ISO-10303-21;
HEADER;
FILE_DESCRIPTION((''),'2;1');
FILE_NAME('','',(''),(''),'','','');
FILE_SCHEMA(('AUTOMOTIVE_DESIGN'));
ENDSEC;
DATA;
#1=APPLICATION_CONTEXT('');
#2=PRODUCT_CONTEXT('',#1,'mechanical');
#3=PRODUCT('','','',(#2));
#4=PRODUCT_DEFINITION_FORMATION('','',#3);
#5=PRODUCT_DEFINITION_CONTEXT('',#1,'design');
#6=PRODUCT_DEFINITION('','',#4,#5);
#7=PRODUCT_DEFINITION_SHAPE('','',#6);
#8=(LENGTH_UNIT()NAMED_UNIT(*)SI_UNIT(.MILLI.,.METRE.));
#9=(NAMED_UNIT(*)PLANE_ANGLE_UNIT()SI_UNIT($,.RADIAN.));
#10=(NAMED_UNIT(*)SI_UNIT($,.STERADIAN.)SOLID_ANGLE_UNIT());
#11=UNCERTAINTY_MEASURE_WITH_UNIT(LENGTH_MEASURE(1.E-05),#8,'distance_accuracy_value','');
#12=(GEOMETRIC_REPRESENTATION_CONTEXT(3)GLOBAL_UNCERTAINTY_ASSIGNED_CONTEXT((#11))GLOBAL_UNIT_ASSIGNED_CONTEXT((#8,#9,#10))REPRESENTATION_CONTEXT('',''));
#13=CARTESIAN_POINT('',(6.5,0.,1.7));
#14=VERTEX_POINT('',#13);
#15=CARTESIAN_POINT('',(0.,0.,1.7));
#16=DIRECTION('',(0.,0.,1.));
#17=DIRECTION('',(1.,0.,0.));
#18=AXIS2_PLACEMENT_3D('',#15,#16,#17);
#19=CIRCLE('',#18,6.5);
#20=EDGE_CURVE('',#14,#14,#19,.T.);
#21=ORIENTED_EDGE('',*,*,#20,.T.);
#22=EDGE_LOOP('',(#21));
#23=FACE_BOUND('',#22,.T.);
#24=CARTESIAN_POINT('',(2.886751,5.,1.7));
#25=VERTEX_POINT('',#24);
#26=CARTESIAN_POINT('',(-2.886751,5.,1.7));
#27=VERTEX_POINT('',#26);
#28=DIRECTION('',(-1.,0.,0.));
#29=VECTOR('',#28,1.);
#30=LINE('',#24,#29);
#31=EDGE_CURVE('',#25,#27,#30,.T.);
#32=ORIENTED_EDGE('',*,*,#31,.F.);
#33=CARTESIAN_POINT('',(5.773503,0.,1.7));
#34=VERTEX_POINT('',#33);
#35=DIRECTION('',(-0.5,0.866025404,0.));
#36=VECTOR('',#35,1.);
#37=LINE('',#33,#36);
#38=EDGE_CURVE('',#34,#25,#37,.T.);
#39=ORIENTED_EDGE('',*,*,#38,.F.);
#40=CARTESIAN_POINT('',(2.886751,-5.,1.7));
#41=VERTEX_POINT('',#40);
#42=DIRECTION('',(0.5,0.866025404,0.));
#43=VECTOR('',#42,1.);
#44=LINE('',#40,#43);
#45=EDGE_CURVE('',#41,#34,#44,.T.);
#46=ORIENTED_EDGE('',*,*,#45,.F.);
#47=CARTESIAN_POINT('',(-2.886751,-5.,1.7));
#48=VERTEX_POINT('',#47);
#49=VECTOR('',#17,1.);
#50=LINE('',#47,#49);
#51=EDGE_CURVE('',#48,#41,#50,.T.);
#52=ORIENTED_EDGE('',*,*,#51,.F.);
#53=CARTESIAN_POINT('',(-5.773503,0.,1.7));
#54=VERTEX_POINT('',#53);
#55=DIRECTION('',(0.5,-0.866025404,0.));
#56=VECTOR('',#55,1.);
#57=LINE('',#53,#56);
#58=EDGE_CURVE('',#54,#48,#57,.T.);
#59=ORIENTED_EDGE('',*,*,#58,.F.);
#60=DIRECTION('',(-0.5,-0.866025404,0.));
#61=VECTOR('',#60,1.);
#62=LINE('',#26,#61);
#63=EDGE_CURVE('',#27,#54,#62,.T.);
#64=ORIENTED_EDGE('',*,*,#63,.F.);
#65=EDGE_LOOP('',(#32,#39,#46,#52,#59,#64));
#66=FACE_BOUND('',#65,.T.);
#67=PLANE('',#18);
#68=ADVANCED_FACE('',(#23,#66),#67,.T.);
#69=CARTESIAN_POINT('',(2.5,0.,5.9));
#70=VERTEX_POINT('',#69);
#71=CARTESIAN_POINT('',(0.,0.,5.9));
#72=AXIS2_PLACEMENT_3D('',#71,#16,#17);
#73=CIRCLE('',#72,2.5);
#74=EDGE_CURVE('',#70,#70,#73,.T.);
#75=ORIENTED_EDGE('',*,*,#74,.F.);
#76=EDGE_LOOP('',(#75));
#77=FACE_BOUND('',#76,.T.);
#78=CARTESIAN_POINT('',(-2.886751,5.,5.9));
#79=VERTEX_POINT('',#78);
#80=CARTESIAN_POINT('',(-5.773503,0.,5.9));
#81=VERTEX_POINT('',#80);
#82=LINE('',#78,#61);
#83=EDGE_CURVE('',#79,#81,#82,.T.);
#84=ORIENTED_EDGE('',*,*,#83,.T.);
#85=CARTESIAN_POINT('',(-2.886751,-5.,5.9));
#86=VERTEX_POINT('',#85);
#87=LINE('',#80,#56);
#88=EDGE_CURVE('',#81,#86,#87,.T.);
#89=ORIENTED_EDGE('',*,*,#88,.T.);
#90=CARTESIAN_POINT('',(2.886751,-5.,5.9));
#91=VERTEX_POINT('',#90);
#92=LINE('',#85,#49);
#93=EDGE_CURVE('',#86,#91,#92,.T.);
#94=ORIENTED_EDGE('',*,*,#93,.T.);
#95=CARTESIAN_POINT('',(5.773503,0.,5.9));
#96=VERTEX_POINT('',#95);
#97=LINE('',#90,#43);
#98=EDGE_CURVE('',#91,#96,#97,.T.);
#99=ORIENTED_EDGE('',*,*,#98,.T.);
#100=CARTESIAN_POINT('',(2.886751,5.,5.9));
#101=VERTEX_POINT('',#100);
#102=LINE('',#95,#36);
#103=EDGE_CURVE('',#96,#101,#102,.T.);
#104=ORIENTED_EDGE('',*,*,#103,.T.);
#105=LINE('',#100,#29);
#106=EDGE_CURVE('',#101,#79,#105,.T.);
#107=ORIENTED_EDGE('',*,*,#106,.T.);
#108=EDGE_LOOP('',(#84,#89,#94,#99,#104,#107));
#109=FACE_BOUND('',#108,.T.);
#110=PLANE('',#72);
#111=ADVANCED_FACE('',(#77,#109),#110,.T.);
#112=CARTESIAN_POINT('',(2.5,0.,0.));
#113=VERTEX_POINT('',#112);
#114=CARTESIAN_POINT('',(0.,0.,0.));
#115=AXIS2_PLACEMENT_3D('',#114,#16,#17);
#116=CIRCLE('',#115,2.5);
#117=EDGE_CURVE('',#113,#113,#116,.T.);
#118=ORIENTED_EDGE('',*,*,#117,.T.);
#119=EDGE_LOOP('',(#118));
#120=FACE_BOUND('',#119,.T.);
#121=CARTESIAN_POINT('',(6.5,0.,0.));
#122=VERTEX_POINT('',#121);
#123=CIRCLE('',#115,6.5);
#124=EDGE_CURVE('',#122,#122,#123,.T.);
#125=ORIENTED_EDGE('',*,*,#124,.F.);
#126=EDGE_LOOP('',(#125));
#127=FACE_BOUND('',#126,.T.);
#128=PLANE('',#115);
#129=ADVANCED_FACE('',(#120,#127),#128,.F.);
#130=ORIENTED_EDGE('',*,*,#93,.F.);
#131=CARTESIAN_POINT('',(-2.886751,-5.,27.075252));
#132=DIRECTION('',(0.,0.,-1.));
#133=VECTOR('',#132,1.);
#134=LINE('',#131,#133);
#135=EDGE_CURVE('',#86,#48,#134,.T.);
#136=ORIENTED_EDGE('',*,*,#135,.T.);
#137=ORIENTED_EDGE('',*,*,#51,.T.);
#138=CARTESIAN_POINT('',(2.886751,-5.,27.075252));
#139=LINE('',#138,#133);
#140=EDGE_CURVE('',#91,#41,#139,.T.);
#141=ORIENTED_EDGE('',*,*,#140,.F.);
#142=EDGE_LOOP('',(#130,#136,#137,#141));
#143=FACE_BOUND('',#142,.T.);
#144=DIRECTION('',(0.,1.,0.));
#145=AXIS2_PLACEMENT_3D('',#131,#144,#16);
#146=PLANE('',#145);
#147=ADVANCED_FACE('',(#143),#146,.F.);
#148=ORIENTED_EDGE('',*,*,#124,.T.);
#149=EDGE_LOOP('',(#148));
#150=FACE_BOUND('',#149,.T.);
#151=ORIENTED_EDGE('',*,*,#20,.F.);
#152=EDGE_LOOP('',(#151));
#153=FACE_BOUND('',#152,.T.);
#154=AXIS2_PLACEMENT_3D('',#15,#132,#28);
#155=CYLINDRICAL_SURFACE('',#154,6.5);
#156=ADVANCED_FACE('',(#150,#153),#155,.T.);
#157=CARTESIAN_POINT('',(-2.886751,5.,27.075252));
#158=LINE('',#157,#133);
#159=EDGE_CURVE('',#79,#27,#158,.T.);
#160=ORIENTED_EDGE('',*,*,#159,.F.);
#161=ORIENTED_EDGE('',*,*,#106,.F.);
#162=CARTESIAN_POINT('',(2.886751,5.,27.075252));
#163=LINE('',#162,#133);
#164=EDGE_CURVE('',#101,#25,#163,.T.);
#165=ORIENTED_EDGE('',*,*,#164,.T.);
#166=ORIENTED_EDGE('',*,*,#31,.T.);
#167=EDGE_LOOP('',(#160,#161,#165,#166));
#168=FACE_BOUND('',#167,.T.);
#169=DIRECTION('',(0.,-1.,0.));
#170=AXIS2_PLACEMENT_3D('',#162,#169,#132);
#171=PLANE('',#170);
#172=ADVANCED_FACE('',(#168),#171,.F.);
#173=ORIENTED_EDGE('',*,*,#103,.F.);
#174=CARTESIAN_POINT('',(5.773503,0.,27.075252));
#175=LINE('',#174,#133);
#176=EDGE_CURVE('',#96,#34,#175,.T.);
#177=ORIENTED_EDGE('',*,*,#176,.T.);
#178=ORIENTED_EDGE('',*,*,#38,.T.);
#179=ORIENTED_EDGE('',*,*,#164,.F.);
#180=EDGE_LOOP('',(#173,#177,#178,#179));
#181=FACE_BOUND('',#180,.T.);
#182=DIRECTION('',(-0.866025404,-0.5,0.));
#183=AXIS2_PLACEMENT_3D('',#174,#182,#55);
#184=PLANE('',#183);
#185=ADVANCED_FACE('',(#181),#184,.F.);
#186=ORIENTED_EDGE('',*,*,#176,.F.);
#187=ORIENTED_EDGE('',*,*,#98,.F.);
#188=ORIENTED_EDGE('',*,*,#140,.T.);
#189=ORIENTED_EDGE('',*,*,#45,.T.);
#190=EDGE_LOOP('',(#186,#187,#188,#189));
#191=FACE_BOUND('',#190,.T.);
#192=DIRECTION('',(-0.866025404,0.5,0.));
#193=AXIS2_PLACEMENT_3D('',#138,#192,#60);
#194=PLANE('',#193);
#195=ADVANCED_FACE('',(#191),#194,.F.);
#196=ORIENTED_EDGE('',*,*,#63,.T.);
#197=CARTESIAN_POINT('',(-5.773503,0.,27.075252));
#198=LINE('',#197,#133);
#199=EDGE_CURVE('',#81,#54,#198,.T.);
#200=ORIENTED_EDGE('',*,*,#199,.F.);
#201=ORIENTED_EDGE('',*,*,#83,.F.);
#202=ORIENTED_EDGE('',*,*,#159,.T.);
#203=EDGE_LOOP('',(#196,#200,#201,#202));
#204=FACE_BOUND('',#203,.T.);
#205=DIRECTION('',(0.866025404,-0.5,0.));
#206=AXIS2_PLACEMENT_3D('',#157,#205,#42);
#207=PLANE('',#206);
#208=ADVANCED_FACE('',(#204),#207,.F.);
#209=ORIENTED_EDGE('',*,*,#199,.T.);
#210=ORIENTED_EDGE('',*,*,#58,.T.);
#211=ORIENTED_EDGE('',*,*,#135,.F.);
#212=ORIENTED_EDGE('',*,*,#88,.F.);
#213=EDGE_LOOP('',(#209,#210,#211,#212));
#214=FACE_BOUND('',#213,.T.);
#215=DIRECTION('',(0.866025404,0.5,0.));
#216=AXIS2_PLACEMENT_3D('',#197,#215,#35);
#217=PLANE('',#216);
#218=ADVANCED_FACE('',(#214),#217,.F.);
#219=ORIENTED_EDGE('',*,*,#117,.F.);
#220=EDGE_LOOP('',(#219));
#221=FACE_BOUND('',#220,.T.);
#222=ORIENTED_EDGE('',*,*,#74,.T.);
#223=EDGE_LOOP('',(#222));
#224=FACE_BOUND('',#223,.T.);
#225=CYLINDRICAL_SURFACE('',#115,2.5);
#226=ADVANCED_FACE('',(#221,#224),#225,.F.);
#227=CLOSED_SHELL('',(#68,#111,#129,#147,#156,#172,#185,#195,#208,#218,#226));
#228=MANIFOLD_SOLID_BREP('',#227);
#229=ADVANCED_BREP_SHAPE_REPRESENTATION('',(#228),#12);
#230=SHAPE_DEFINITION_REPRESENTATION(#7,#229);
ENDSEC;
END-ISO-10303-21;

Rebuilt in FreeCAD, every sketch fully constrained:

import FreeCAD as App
import Part
import Sketcher
from FreeCAD import Vector
Q = App.Units.Quantity


def add_polygon(sketch, points):
    """Adds a closed chain of lines whose ends are joined by coincident constraints."""
    first, n = sketch.GeometryCount, len(points)
    for a, b in zip(points, points[1:] + points[:1]):
        sketch.addGeometry(Part.LineSegment(App.Vector(*a, 0), App.Vector(*b, 0)), False)
    for i in range(n):
        sketch.addConstraint(Sketcher.Constraint("Coincident", first + i, 2, first + (i + 1) % n, 1))

doc = App.newDocument("Part")
params = doc.addObject("Spreadsheet::Sheet", "Params")
for row, (alias, value) in enumerate([
    ("sketch1_diameter", "13 mm"),
    ("pad1_length", "1.7 mm"),
    ("pad2_length", "4.2 mm"),
    ("sketch3_diameter", "5 mm"),
], start=1):
    params.set(f"A{row}", alias)
    params.set(f"B{row}", "=" + value)
    params.setAlias(f"B{row}", alias)

body = doc.addObject("PartDesign::Body", "Body")

sketch1 = body.newObject("Sketcher::SketchObject", "Sketch")
sketch1.AttachmentSupport = (doc.getObject("XY_Plane"), [""])
sketch1.MapMode = "FlatFace"
sketch1.addGeometry(Part.Circle(Vector(0, 0, 0), Vector(0, 0, 1), 6), False)
sketch1.addConstraint(Sketcher.Constraint("Coincident", 0, 3, -1, 1))
sketch1.addConstraint(Sketcher.Constraint("Diameter", 0, 13.0))
sketch1.setExpression("Constraints[1]", "Params.sketch1_diameter")
pad1 = body.newObject("PartDesign::Pad", "Pad")
pad1.Profile = sketch1
pad1.setExpression("Length", "Params.pad1_length")

sketch2 = body.newObject("Sketcher::SketchObject", "Sketch001")
sketch2.AttachmentSupport = (doc.getObject("XY_Plane"), [""])
sketch2.MapMode = "FlatFace"
sketch2.AttachmentOffset = App.Placement(Vector(0, 0, 1.7), App.Rotation())
add_polygon(sketch2, [(6, 0), (3, 5), (-3, 5), (-6, 0), (-3, -5), (3, -5)])
sketch2.addConstraint(Sketcher.Constraint("Horizontal", 1))
sketch2.addConstraint(Sketcher.Constraint("Horizontal", 4))
sketch2.addConstraint(Sketcher.Constraint("Symmetric", 0, 2, 3, 2, -1, 1))
sketch2.addConstraint(Sketcher.Constraint("Symmetric", 2, 2, 5, 2, -1, 1))
sketch2.addConstraint(Sketcher.Constraint("PointOnObject", 2, 2, -1))
sketch2.addConstraint(Sketcher.Constraint("Parallel", 2, 5))
sketch2.addConstraint(Sketcher.Constraint("Vertical", 1, 2, 3, 2))
sketch2.addConstraint(Sketcher.Constraint("Angle", 0, Q("120 deg")))
sketch2.addConstraint(Sketcher.Constraint("DistanceY", -1, 1, 0, 2, 5.0))
sketch2.addConstraint(Sketcher.Constraint("DistanceX", 1, 2, 1, 1, 5.773503))
pad2 = body.newObject("PartDesign::Pad", "Pad001")
pad2.Profile = sketch2
pad2.setExpression("Length", "Params.pad2_length")

sketch3 = body.newObject("Sketcher::SketchObject", "Sketch002")
sketch3.AttachmentSupport = (doc.getObject("XY_Plane"), [""])
sketch3.MapMode = "FlatFace"
sketch3.AttachmentOffset = App.Placement(Vector(0, 0, 5.9), App.Rotation())
sketch3.addGeometry(Part.Circle(Vector(0, 0, 0), Vector(0, 0, 1), 2.5), False)
sketch3.addConstraint(Sketcher.Constraint("Coincident", 0, 3, -1, 1))
sketch3.addConstraint(Sketcher.Constraint("Diameter", 0, 5.0))
sketch3.setExpression("Constraints[1]", "Params.sketch3_diameter")
pocket1 = body.newObject("PartDesign::Pocket", "Pocket")
pocket1.Profile = sketch3
pocket1.Type = "ThroughAll"

doc.recompute()
